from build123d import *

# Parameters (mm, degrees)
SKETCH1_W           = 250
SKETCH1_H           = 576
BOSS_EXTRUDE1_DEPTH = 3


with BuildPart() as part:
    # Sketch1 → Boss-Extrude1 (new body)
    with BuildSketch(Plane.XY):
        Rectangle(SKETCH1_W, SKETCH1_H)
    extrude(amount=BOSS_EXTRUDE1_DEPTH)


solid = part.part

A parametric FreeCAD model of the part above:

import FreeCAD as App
import Part
import Sketcher

doc = App.newDocument("Part")
body = doc.addObject("PartDesign::Body", "Body")

sketch1 = body.newObject("Sketcher::SketchObject", "Sketch")
sketch1.AttachmentSupport = (doc.getObject("XY_Plane"), [""])
sketch1.MapMode = "FlatFace"
sketch1.addGeometry([
    Part.LineSegment(App.Vector(-125, 288, 0), App.Vector(-125, -288, 0)),
    Part.LineSegment(App.Vector(-125, -288, 0), App.Vector(125, -288, 0)),
    Part.LineSegment(App.Vector(125, -288, 0), App.Vector(125, 288, 0)),
    Part.LineSegment(App.Vector(125, 288, 0), App.Vector(-125, 288, 0)),
], False)
sketch1.addConstraint([
    Sketcher.Constraint("Coincident", 0, 2, 1, 1),
    Sketcher.Constraint("Coincident", 1, 2, 2, 1),
    Sketcher.Constraint("Coincident", 2, 2, 3, 1),
    Sketcher.Constraint("Coincident", 3, 2, 0, 1),
    Sketcher.Constraint("Vertical", 0),
    Sketcher.Constraint("Horizontal", 1),
    Sketcher.Constraint("Vertical", 2),
    Sketcher.Constraint("Horizontal", 3),
    Sketcher.Constraint("Symmetric", 0, 2, 2, 2, -1, 1),
    Sketcher.Constraint("DistanceX", 1, 1, 1, 2, 250.0),
    Sketcher.Constraint("DistanceY", 0, 2, 0, 1, 576.0),
])
pad1 = body.newObject("PartDesign::Pad", "Pad")
pad1.Profile = sketch1
pad1.Length = 3

doc.recompute()
